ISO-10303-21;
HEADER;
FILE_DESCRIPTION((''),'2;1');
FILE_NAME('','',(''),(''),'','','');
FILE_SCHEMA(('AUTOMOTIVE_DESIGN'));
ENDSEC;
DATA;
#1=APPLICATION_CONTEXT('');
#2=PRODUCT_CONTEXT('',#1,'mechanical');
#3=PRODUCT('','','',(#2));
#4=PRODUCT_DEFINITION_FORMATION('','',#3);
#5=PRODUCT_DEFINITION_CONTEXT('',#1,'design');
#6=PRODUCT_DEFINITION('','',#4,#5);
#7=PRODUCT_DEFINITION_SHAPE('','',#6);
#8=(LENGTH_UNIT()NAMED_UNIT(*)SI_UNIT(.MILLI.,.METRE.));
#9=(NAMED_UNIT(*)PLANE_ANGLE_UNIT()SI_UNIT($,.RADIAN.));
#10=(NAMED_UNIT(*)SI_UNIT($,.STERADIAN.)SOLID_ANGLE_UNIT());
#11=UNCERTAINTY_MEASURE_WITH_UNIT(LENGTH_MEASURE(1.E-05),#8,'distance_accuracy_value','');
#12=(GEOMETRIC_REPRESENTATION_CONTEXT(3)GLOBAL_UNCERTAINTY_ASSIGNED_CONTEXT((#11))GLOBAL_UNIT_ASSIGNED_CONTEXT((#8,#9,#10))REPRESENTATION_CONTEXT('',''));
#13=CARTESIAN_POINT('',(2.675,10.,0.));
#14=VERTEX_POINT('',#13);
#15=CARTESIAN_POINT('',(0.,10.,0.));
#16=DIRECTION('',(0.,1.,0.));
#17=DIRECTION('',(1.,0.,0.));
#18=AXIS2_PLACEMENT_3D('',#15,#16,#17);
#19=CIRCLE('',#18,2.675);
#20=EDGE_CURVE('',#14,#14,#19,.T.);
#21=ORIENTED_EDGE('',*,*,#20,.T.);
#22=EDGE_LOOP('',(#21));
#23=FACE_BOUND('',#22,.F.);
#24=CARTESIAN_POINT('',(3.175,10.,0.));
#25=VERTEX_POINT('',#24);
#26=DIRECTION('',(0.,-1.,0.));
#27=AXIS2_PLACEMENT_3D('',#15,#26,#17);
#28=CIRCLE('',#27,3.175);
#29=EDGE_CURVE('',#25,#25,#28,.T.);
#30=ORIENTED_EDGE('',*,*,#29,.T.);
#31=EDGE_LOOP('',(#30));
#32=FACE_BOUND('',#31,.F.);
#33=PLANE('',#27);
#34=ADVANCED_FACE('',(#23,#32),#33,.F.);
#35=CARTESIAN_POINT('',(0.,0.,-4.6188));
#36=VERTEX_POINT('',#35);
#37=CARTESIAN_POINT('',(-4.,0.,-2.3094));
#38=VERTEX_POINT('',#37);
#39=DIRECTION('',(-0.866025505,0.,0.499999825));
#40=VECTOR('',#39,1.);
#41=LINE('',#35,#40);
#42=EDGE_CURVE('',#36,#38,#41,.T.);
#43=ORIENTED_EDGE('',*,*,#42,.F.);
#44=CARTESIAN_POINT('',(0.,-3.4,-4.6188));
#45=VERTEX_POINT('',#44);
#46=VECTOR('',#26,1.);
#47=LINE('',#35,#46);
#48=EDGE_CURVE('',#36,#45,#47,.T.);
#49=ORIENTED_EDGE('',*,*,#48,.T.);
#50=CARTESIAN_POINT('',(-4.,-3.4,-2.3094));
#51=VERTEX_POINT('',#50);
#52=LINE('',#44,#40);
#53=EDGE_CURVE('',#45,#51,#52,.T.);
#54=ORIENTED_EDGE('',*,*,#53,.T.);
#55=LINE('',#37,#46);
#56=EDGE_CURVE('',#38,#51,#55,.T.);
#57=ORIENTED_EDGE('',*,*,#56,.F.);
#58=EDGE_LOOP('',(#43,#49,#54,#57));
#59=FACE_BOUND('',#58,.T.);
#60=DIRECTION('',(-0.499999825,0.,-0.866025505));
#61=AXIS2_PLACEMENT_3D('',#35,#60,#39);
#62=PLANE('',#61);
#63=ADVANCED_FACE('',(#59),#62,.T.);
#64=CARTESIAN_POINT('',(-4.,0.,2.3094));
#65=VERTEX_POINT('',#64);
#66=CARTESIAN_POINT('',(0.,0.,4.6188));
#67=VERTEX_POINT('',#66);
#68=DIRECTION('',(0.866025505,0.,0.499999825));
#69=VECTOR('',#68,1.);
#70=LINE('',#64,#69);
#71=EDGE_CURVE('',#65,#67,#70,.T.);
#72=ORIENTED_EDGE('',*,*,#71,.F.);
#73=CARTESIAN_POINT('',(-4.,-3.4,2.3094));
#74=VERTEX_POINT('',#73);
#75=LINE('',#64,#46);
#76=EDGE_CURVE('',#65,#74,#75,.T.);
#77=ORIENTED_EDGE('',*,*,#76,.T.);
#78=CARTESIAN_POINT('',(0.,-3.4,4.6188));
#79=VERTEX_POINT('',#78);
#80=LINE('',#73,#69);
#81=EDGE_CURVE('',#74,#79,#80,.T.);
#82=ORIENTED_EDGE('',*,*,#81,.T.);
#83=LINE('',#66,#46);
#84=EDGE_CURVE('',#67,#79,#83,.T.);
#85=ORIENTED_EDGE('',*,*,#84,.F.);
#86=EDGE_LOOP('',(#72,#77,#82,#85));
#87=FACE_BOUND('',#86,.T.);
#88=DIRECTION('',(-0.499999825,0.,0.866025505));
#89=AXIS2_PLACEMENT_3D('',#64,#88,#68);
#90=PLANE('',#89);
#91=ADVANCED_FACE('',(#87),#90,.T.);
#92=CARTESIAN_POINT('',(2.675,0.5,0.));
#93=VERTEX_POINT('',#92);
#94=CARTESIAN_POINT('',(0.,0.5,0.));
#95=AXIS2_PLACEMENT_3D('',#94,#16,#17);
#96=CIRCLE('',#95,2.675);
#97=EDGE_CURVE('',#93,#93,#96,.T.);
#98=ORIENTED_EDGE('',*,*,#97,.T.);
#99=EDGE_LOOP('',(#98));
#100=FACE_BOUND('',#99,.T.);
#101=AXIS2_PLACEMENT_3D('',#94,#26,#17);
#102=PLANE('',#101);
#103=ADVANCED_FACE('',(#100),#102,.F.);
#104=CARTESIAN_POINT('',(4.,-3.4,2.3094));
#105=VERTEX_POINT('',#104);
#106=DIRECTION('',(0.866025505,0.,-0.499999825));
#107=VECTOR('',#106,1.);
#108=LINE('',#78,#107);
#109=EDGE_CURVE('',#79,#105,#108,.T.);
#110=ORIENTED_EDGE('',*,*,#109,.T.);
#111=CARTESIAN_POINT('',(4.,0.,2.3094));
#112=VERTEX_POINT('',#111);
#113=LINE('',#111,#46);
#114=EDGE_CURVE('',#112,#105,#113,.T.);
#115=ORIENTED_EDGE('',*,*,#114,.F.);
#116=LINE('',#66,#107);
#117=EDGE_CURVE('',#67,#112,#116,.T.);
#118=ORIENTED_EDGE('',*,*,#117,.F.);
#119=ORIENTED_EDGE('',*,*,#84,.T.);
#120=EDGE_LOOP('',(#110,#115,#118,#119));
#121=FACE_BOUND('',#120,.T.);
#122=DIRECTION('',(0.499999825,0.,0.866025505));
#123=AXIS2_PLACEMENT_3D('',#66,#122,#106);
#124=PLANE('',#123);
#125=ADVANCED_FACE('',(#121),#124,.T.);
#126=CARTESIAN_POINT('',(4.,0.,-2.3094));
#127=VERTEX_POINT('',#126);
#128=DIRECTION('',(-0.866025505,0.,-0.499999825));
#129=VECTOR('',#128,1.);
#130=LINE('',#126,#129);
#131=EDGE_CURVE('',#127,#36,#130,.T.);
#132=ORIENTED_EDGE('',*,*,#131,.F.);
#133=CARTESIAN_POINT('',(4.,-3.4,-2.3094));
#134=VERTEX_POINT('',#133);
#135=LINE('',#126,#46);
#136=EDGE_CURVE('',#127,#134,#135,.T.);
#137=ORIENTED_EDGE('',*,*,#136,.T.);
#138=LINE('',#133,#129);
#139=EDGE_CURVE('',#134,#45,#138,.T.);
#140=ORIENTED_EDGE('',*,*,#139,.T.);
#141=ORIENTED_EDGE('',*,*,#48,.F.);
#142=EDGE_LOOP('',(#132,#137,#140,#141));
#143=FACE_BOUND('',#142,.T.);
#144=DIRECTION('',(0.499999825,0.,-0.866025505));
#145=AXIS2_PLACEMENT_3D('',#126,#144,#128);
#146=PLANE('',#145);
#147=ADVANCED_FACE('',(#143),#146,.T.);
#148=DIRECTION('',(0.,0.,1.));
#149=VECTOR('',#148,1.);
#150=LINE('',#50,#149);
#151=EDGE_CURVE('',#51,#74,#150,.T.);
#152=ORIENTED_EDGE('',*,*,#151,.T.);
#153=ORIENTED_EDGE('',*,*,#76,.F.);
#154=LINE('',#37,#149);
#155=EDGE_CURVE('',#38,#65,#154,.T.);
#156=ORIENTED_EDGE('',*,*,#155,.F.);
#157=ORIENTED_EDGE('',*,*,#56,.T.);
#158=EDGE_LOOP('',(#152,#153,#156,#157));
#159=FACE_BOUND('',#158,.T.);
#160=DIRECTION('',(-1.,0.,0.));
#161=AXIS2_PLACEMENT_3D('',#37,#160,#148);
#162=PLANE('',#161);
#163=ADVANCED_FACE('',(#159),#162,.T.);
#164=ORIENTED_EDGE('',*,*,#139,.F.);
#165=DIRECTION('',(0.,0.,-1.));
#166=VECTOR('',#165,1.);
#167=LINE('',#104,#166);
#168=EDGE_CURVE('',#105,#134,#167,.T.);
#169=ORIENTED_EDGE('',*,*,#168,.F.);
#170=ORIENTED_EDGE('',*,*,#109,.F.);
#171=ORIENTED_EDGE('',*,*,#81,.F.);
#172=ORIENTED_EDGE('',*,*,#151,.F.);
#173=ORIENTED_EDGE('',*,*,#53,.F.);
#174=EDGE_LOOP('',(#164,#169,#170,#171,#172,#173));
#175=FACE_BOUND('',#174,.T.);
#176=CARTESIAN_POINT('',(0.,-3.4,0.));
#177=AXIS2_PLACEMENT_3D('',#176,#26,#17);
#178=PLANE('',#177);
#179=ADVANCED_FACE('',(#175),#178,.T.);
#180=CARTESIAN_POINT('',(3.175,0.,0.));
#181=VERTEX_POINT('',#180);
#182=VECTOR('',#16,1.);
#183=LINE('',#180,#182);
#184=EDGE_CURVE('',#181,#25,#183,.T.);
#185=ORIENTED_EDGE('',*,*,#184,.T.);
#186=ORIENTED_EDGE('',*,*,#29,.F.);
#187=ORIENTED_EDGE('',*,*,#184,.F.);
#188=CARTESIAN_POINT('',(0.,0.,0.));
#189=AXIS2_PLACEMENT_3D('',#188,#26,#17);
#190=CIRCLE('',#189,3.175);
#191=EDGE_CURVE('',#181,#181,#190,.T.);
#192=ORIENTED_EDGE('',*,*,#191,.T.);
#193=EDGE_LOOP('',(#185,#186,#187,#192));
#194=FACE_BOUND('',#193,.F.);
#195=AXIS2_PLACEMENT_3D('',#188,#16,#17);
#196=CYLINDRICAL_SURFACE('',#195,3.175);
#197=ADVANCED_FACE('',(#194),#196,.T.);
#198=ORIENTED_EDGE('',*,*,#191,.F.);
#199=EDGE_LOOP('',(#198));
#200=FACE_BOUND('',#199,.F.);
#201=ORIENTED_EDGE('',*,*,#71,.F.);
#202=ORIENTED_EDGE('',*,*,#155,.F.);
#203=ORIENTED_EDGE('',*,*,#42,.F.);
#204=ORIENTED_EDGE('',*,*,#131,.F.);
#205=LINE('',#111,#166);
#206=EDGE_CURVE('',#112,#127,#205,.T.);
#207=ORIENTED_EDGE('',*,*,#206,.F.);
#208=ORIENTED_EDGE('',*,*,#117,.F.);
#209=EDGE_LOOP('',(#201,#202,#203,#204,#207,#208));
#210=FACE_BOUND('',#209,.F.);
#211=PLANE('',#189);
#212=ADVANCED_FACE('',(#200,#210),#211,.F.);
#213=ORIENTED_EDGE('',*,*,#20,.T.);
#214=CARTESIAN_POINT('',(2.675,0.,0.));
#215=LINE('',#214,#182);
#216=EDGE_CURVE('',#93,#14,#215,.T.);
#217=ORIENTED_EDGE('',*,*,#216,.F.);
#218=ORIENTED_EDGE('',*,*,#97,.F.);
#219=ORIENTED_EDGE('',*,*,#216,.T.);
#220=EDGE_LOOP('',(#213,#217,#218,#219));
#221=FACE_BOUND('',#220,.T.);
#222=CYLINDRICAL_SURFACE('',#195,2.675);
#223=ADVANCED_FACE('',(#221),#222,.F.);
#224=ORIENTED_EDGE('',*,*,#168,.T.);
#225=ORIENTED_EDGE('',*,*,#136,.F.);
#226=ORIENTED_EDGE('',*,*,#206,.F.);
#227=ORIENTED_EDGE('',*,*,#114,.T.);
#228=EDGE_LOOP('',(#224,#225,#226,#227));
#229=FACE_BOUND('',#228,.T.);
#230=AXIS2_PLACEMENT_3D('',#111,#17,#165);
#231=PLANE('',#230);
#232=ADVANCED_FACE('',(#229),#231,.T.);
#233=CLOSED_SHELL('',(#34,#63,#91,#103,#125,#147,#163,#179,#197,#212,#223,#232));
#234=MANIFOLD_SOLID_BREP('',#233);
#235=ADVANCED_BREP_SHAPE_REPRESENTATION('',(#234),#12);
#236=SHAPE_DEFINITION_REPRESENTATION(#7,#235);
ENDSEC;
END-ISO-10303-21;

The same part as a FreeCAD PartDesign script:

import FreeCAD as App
import Part
import Sketcher

V = App.Vector
Q = App.Units.Quantity


def faces_at(feature, points):
    """Names of the faces that lie closest to the given points."""
    faces = feature.Shape.Faces
    near = lambda p: min(range(len(faces)), key=lambda i: faces[i].distToShape(Part.Vertex(*p))[0])
    return sorted({f"Face{near(p) + 1}" for p in points})


def add_polygon(sketch, points):
    """Adds a closed chain of lines whose ends are joined by coincident constraints."""
    first, n = sketch.GeometryCount, len(points)
    for a, b in zip(points, points[1:] + points[:1]):
        sketch.addGeometry(Part.LineSegment(App.Vector(*a, 0), App.Vector(*b, 0)), False)
    for i in range(n):
        sketch.addConstraint(Sketcher.Constraint("Coincident", first + i, 2, first + (i + 1) % n, 1))

doc = App.newDocument("Part")
body = doc.addObject("PartDesign::Body", "Body")

sketch1 = body.newObject("Sketcher::SketchObject", "Sketch")
sketch1.AttachmentSupport = (doc.getObject("XY_Plane"), [""])
sketch1.MapMode = "FlatFace"
add_polygon(sketch1, [(0, 10), (0, 0), (3.175, 0), (3.175, 10)])
sketch1.addConstraint([
    Sketcher.Constraint("Vertical", 0),
    Sketcher.Constraint("Horizontal", 1),
    Sketcher.Constraint("Vertical", 2),
    Sketcher.Constraint("Horizontal", 3),
    Sketcher.Constraint("Coincident", 0, 2, -1, 1),
    Sketcher.Constraint("DistanceY", 0, 2, 0, 1, 10.0),
    Sketcher.Constraint("DistanceX", 1, 1, 1, 2, 3.175),
])
revolution = body.newObject("PartDesign::Revolution", "Revolution")
revolution.Profile = sketch1
revolution.ReferenceAxis = (sketch1, ["V_Axis"])
revolution.Angle = 360
doc.recompute()

thickness = body.newObject("PartDesign::Thickness", "Thickness")
thickness.Base = (revolution, faces_at(revolution, [(0.883, 10, -0.043)]))
thickness.Value = 0.5
thickness.Reversed = True
thickness.Join = "Intersection"

sketch2 = body.newObject("Sketcher::SketchObject", "Sketch001")
sketch2.AttachmentSupport = (doc.getObject("XZ_Plane"), [""])
sketch2.MapMode = "FlatFace"
add_polygon(sketch2, [(4, 2.3094), (0, 4.6188), (-4, 2.3094), (-4, -2.3094), (0, -4.6188), (4, -2.3094)])
sketch2.addConstraint([
    Sketcher.Constraint("Vertical", 2),
    Sketcher.Constraint("Vertical", 5),
    Sketcher.Constraint("Symmetric", 0, 2, 3, 2, -1, 1),
    Sketcher.Constraint("Symmetric", 1, 2, 4, 2, -1, 1),
    Sketcher.Constraint("PointOnObject", 0, 2, -2),
    Sketcher.Constraint("Parallel", 0, 3),
    Sketcher.Constraint("Horizontal", 2, 2, 4, 2),
    Sketcher.Constraint("DistanceX", 2, 2, 4, 2, 8.0),
    Sketcher.Constraint("Angle", 0, Q("150 deg")),
    Sketcher.Constraint("DistanceY", 2, 2, 2, 1, 4.6188),
])
pad1 = body.newObject("PartDesign::Pad", "Pad")
pad1.Profile = sketch2
pad1.Length = 3.4

doc.recompute()
